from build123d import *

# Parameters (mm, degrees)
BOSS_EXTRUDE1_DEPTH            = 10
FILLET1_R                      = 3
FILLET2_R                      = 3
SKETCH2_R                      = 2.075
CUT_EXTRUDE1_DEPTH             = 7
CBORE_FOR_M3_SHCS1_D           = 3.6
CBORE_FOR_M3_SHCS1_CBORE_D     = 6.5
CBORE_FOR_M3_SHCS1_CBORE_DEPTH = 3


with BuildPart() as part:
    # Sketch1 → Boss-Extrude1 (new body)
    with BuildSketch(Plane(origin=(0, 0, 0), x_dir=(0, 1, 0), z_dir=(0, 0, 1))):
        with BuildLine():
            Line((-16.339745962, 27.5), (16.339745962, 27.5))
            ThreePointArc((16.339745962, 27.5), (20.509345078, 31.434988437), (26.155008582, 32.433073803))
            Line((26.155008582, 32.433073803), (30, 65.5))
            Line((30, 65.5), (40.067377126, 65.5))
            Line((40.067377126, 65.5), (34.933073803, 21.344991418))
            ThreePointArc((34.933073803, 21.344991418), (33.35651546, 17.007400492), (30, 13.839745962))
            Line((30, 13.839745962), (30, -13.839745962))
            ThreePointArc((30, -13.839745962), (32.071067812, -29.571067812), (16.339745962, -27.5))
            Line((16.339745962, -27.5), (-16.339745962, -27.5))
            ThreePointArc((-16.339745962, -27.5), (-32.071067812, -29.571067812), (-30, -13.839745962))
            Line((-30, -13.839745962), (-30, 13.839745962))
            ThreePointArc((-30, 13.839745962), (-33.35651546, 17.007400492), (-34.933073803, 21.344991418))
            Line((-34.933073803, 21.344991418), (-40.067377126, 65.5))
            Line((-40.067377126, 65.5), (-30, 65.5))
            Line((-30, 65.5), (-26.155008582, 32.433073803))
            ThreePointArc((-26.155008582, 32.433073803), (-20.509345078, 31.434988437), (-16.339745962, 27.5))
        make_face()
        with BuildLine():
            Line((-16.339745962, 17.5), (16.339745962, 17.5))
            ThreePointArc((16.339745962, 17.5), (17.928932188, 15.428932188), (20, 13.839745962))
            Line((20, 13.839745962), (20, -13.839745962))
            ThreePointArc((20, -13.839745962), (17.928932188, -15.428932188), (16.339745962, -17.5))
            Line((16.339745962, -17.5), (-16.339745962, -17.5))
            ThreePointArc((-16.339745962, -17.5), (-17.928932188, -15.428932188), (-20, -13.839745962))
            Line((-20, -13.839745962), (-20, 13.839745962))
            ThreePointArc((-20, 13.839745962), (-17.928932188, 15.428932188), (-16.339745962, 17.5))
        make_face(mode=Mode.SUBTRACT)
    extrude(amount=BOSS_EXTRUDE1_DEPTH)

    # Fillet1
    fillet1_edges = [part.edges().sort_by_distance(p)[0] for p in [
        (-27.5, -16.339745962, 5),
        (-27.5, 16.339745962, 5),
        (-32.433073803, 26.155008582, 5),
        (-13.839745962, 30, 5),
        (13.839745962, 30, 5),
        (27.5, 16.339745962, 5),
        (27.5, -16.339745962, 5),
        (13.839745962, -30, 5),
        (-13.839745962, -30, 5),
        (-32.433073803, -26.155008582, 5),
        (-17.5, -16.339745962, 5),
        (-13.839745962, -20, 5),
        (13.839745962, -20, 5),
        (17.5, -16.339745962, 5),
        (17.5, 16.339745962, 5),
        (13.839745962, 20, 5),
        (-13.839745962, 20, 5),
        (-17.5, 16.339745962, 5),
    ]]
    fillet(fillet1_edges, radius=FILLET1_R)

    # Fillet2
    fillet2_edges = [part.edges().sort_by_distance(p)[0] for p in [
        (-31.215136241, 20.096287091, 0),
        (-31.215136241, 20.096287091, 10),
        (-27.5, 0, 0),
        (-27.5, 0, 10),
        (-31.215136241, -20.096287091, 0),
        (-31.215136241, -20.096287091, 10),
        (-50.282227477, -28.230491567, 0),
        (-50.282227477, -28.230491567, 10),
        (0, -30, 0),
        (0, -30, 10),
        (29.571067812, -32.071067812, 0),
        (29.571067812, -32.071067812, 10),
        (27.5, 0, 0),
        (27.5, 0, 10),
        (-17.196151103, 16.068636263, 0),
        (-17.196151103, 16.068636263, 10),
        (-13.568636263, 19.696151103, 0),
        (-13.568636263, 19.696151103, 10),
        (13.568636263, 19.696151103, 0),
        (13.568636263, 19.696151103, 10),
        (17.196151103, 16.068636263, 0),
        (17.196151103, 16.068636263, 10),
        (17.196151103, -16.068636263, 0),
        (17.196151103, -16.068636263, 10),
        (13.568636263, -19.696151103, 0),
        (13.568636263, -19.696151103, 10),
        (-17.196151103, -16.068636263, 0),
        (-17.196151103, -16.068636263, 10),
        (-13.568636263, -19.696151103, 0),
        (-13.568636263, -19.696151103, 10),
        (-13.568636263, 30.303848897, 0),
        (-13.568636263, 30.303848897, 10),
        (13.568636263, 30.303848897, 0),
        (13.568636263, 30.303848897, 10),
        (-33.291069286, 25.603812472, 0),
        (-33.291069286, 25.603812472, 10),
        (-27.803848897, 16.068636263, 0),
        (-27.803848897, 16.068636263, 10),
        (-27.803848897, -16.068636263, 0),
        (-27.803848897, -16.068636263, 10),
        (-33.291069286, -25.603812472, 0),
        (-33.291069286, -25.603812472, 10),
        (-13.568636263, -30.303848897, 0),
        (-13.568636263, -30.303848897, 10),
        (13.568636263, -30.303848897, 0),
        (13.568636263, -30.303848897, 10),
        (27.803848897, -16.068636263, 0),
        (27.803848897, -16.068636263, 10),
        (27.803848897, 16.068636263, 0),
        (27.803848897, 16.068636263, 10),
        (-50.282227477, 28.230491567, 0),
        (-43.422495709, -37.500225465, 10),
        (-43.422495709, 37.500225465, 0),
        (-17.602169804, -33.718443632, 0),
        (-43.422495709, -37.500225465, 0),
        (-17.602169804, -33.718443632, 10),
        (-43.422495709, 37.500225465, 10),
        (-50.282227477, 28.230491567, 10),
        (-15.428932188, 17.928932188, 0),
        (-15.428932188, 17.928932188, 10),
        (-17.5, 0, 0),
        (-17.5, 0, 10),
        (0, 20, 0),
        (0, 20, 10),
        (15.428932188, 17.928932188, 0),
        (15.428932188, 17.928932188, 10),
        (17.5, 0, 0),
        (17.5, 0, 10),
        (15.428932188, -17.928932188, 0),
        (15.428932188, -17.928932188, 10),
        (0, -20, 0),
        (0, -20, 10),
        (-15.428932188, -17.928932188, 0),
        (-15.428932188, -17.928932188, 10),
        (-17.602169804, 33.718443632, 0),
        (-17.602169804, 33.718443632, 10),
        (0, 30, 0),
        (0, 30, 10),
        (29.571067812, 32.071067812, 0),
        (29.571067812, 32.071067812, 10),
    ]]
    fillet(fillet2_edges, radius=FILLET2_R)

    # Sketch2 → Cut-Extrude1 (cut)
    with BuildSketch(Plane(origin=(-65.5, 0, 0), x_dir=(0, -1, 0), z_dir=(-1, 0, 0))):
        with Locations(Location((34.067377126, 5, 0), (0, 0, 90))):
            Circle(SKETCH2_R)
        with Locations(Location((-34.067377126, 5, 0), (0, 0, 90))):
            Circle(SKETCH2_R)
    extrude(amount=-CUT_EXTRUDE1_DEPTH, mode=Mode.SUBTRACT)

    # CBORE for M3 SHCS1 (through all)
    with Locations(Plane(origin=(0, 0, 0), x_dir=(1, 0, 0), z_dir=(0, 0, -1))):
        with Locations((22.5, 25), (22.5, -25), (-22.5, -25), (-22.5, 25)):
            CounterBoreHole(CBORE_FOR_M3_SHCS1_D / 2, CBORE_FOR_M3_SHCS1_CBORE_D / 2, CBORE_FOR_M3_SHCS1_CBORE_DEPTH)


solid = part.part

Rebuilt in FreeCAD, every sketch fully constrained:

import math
import FreeCAD as App
import Part
import Sketcher
from FreeCAD import Vector
Q = App.Units.Quantity


def edges_at(feature, points):
    """Names of the edges that pass closest to the given points."""
    edges = feature.Shape.Edges
    near = lambda p: min(range(len(edges)), key=lambda i: edges[i].distToShape(Part.Vertex(*p))[0])
    return sorted({f"Edge{near(p) + 1}" for p in points})

doc = App.newDocument("Part")
body = doc.addObject("PartDesign::Body", "Body")

# Sketch on XY plane
sketch1 = doc.addObject("Sketcher::SketchObject", "Sketch")
body.addObject(sketch1)
sketch1.AttachmentSupport = (doc.XY_Plane, [""])
sketch1.MapMode = "FlatFace"
sketch1.addGeometry(Part.LineSegment(Vector(-28, 16, 0), Vector(-28, -16, 0)), False)
sketch1.addGeometry(Part.ArcOfCircle(Part.Circle(Vector(-22, -25, 0), Vector(0, 0, 1), 10), math.radians(120), math.radians(187)), False)
sketch1.addGeometry(Part.LineSegment(Vector(-32, -26, 0), Vector(-66, -30, 0)), False)
sketch1.addGeometry(Part.LineSegment(Vector(-66, -30, 0), Vector(-66, -40, 0)), False)
sketch1.addGeometry(Part.LineSegment(Vector(-66, -40, 0), Vector(-21, -35, 0)), False)
sketch1.addGeometry(Part.ArcOfCircle(Part.Circle(Vector(-23, -25, 0), Vector(0, 0, 1), 10), math.radians(-83), math.radians(-30)), False)
sketch1.addGeometry(Part.LineSegment(Vector(-14, -30, 0), Vector(14, -30, 0)), False)
sketch1.addGeometry(Part.ArcOfCircle(Part.Circle(Vector(22, -25, 0), Vector(0, 0, 1), 10), math.radians(-150), math.radians(60)), False)
sketch1.addGeometry(Part.LineSegment(Vector(28, -16, 0), Vector(28, 16, 0)), False)
sketch1.addGeometry(Part.ArcOfCircle(Part.Circle(Vector(22, 25, 0), Vector(0, 0, 1), 10), math.radians(-60), math.radians(150)), False)
sketch1.addGeometry(Part.LineSegment(Vector(14, 30, 0), Vector(-14, 30, 0)), False)
sketch1.addGeometry(Part.ArcOfCircle(Part.Circle(Vector(-23, 25, 0), Vector(0, 0, 1), 10), math.radians(30), math.radians(83)), False)
sketch1.addGeometry(Part.LineSegment(Vector(-21, 35, 0), Vector(-66, 40, 0)), False)
sketch1.addGeometry(Part.LineSegment(Vector(-66, 40, 0), Vector(-66, 30, 0)), False)
sketch1.addGeometry(Part.LineSegment(Vector(-66, 30, 0), Vector(-32, 26, 0)), False)
sketch1.addGeometry(Part.ArcOfCircle(Part.Circle(Vector(-22, 25, 0), Vector(0, 0, 1), 10), math.radians(173), math.radians(240)), False)
sketch1.addGeometry(Part.LineSegment(Vector(-18, -16, 0), Vector(-18, 16, 0)), False)
sketch1.addGeometry(Part.ArcOfCircle(Part.Circle(Vector(-22, 25, 0), Vector(0, 0, 1), 10), math.radians(-60), math.radians(-30)), False)
sketch1.addGeometry(Part.LineSegment(Vector(-14, 20, 0), Vector(14, 20, 0)), False)
sketch1.addGeometry(Part.ArcOfCircle(Part.Circle(Vector(22, 25, 0), Vector(0, 0, 1), 10), math.radians(-150), math.radians(-120)), False)
sketch1.addGeometry(Part.LineSegment(Vector(18, 16, 0), Vector(18, -16, 0)), False)
sketch1.addGeometry(Part.ArcOfCircle(Part.Circle(Vector(22, -25, 0), Vector(0, 0, 1), 10), math.radians(120), math.radians(150)), False)
sketch1.addGeometry(Part.LineSegment(Vector(14, -20, 0), Vector(-14, -20, 0)), False)
sketch1.addGeometry(Part.ArcOfCircle(Part.Circle(Vector(-22, -25, 0), Vector(0, 0, 1), 10), math.radians(30), math.radians(60)), False)
sketch1.addConstraint(Sketcher.Constraint("Coincident", 0, 2, 1, 1))
sketch1.addConstraint(Sketcher.Constraint("Coincident", 1, 2, 2, 1))
sketch1.addConstraint(Sketcher.Constraint("Coincident", 2, 2, 3, 1))
sketch1.addConstraint(Sketcher.Constraint("Coincident", 3, 2, 4, 1))
sketch1.addConstraint(Sketcher.Constraint("Tangent", 4, 2, 5, 1))
sketch1.addConstraint(Sketcher.Constraint("Coincident", 5, 2, 6, 1))
sketch1.addConstraint(Sketcher.Constraint("Coincident", 6, 2, 7, 1))
sketch1.addConstraint(Sketcher.Constraint("Coincident", 7, 2, 8, 1))
sketch1.addConstraint(Sketcher.Constraint("Coincident", 8, 2, 9, 1))
sketch1.addConstraint(Sketcher.Constraint("Coincident", 9, 2, 10, 1))
sketch1.addConstraint(Sketcher.Constraint("Coincident", 10, 2, 11, 1))
sketch1.addConstraint(Sketcher.Constraint("Tangent", 11, 2, 12, 1))
sketch1.addConstraint(Sketcher.Constraint("Coincident", 12, 2, 13, 1))
sketch1.addConstraint(Sketcher.Constraint("Coincident", 13, 2, 14, 1))
sketch1.addConstraint(Sketcher.Constraint("Coincident", 14, 2, 15, 1))
sketch1.addConstraint(Sketcher.Constraint("Coincident", 15, 2, 0, 1))
sketch1.addConstraint(Sketcher.Constraint("Coincident", 16, 2, 17, 1))
sketch1.addConstraint(Sketcher.Constraint("Coincident", 17, 2, 18, 1))
sketch1.addConstraint(Sketcher.Constraint("Coincident", 18, 2, 19, 1))
sketch1.addConstraint(Sketcher.Constraint("Coincident", 19, 2, 20, 1))
sketch1.addConstraint(Sketcher.Constraint("Coincident", 20, 2, 21, 1))
sketch1.addConstraint(Sketcher.Constraint("Coincident", 21, 2, 22, 1))
sketch1.addConstraint(Sketcher.Constraint("Coincident", 22, 2, 23, 1))
sketch1.addConstraint(Sketcher.Constraint("Coincident", 23, 2, 16, 1))
sketch1.addConstraint(Sketcher.Constraint("Vertical", 0))
sketch1.addConstraint(Sketcher.Constraint("Vertical", 3))
sketch1.addConstraint(Sketcher.Constraint("Horizontal", 6))
sketch1.addConstraint(Sketcher.Constraint("Vertical", 8))
sketch1.addConstraint(Sketcher.Constraint("Horizontal", 10))
sketch1.addConstraint(Sketcher.Constraint("Vertical", 13))
sketch1.addConstraint(Sketcher.Constraint("Vertical", 16))
sketch1.addConstraint(Sketcher.Constraint("Horizontal", 18))
sketch1.addConstraint(Sketcher.Constraint("Vertical", 20))
sketch1.addConstraint(Sketcher.Constraint("Horizontal", 22))
sketch1.addConstraint(Sketcher.Constraint("Coincident", 5, 3, 1, 3))
sketch1.addConstraint(Sketcher.Constraint("Coincident", 15, 3, 11, 3))
sketch1.addConstraint(Sketcher.Constraint("Coincident", 17, 3, 11, 3))
sketch1.addConstraint(Sketcher.Constraint("Coincident", 19, 3, 9, 3))
sketch1.addConstraint(Sketcher.Constraint("Coincident", 21, 3, 7, 3))
sketch1.addConstraint(Sketcher.Constraint("Coincident", 23, 3, 1, 3))
sketch1.addConstraint(Sketcher.Constraint("Equal", 1, 5))
sketch1.addConstraint(Sketcher.Constraint("Equal", 5, 7))
sketch1.addConstraint(Sketcher.Constraint("Equal", 7, 9))
sketch1.addConstraint(Sketcher.Constraint("Equal", 9, 11))
sketch1.addConstraint(Sketcher.Constraint("Equal", 11, 15))
sketch1.addConstraint(Sketcher.Constraint("Equal", 15, 17))
sketch1.addConstraint(Sketcher.Constraint("Equal", 17, 19))
sketch1.addConstraint(Sketcher.Constraint("Equal", 19, 21))
sketch1.addConstraint(Sketcher.Constraint("Equal", 21, 23))
sketch1.addConstraint(Sketcher.Constraint("Symmetric", 1, 3, 9, 3, -1, 1))
sketch1.addConstraint(Sketcher.Constraint("Symmetric", 7, 3, 11, 3, -1, 1))
sketch1.addConstraint(Sketcher.Constraint("Symmetric", 1, 3, 7, 3, -2))
sketch1.addConstraint(Sketcher.Constraint("Symmetric", 3, 2, 12, 2, -1))
sketch1.addConstraint(Sketcher.Constraint("Parallel", 2, 4))
sketch1.addConstraint(Sketcher.Constraint("Parallel", 12, 14))
sketch1.addConstraint(Sketcher.Constraint("Horizontal", 2, 2, 5, 2))
sketch1.addConstraint(Sketcher.Constraint("Horizontal", 0, 2, 7, 2))
sketch1.addConstraint(Sketcher.Constraint("Horizontal", 10, 2, 13, 2))
sketch1.addConstraint(Sketcher.Constraint("Horizontal", 15, 2, 16, 2))
sketch1.addConstraint(Sketcher.Constraint("Horizontal", 16, 2, 19, 2))
sketch1.addConstraint(Sketcher.Constraint("Vertical", 6, 2, 9, 2))
sketch1.addConstraint(Sketcher.Constraint("Vertical", 10, 2, 17, 2))
sketch1.addConstraint(Sketcher.Constraint("Vertical", 18, 2, 21, 2))
sketch1.addConstraint(Sketcher.Constraint("Radius", 1, Q("10 mm")))
sketch1.addConstraint(Sketcher.Constraint("DistanceY", 1, 3, -1, 1, Q("25 mm")))
sketch1.addConstraint(Sketcher.Constraint("DistanceY", 2, 2, -1, 1, Q("30 mm")))
sketch1.addConstraint(Sketcher.Constraint("DistanceX", 1, 3, 7, 3, Q("45 mm")))
sketch1.addConstraint(Sketcher.Constraint("DistanceX", 0, 2, 5, 3, Q("5 mm")))
sketch1.addConstraint(Sketcher.Constraint("DistanceX", 2, 2, 0, 2, Q("38 mm")))
sketch1.addConstraint(Sketcher.Constraint("DistanceY", 3, 2, 3, 1, Q("10.067377 mm")))
pad1 = doc.addObject("PartDesign::Pad", "Pad")
body.addObject(pad1)
pad1.Profile = sketch1
pad1.Length = 10
doc.recompute()

fillet = doc.addObject("PartDesign::Fillet", "Fillet")
body.addObject(fillet)
fillet.Base = (pad1, edges_at(pad1, [
    (-27.5, -16.34, 5),
    (-27.5, 16.34, 5),
    (-32.433, 26.155, 5),
    (-13.84, 30, 5),
    (13.84, 30, 5),
    (27.5, 16.34, 5),
    (27.5, -16.34, 5),
    (13.84, -30, 5),
    (-13.84, -30, 5),
    (-32.433, -26.155, 5),
    (-17.5, -16.34, 5),
    (-13.84, -20, 5),
    (13.84, -20, 5),
    (17.5, -16.34, 5),
    (17.5, 16.34, 5),
    (13.84, 20, 5),
    (-13.84, 20, 5),
    (-17.5, 16.34, 5),
]))
fillet.Radius = 3
doc.recompute()

fillet2 = doc.addObject("PartDesign::Fillet", "Fillet001")
body.addObject(fillet2)
fillet2.Base = (fillet, edges_at(fillet, [
    (-31.215, 20.096, 0),
    (-31.215, 20.096, 10),
    (-27.5, 0, 0),
    (-27.5, 0, 10),
    (-31.215, -20.096, 0),
    (-31.215, -20.096, 10),
    (-50.282, -28.23, 0),
    (-50.282, -28.23, 10),
    (0, -30, 0),
    (0, -30, 10),
    (29.571, -32.071, 0),
    (29.571, -32.071, 10),
    (27.5, 0, 0),
    (27.5, 0, 10),
    (-17.196, 16.069, 0),
    (-17.196, 16.069, 10),
    (-13.569, 19.696, 0),
    (-13.569, 19.696, 10),
    (13.569, 19.696, 0),
    (13.569, 19.696, 10),
    (17.196, 16.069, 0),
    (17.196, 16.069, 10),
    (17.196, -16.069, 0),
    (17.196, -16.069, 10),
    (13.569, -19.696, 0),
    (13.569, -19.696, 10),
    (-17.196, -16.069, 0),
    (-17.196, -16.069, 10),
    (-13.569, -19.696, 0),
    (-13.569, -19.696, 10),
    (-13.569, 30.304, 0),
    (-13.569, 30.304, 10),
    (13.569, 30.304, 0),
    (13.569, 30.304, 10),
    (-33.291, 25.604, 0),
    (-33.291, 25.604, 10),
    (-27.804, 16.069, 0),
    (-27.804, 16.069, 10),
    (-27.804, -16.069, 0),
    (-27.804, -16.069, 10),
    (-33.291, -25.604, 0),
    (-33.291, -25.604, 10),
    (-13.569, -30.304, 0),
    (-13.569, -30.304, 10),
    (13.569, -30.304, 0),
    (13.569, -30.304, 10),
    (27.804, -16.069, 0),
    (27.804, -16.069, 10),
    (27.804, 16.069, 0),
    (27.804, 16.069, 10),
    (-50.282, 28.23, 0),
    (-43.422, -37.5, 10),
    (-43.422, 37.5, 0),
    (-17.602, -33.718, 0),
    (-43.422, -37.5, 0),
    (-17.602, -33.718, 10),
    (-43.422, 37.5, 10),
    (-50.282, 28.23, 10),
    (-15.429, 17.929, 0),
    (-15.429, 17.929, 10),
    (-17.5, 0, 0),
    (-17.5, 0, 10),
    (0, 20, 0),
    (0, 20, 10),
    (15.429, 17.929, 0),
    (15.429, 17.929, 10),
    (17.5, 0, 0),
    (17.5, 0, 10),
    (15.429, -17.929, 0),
    (15.429, -17.929, 10),
    (0, -20, 0),
    (0, -20, 10),
    (-15.429, -17.929, 0),
    (-15.429, -17.929, 10),
    (-17.602, 33.718, 0),
    (-17.602, 33.718, 10),
    (0, 30, 0),
    (0, 30, 10),
    (29.571, 32.071, 0),
    (29.571, 32.071, 10),
]))
fillet2.Radius = 3

# Sketch on YZ plane
sketch2 = doc.addObject("Sketcher::SketchObject", "Sketch001")
body.addObject(sketch2)
sketch2.AttachmentSupport = (doc.YZ_Plane, [""])
sketch2.MapMode = "FlatFace"
sketch2.AttachmentOffset = App.Placement(Vector(0, 0, -65.5), App.Rotation())
sketch2.addGeometry(Part.Circle(Vector(-34.1, 5, 0), Vector(0, 0, 1), 2.1), False)
sketch2.addGeometry(Part.Circle(Vector(34.1, 5, 0), Vector(0, 0, 1), 2.1), False)
sketch2.addConstraint(Sketcher.Constraint("Equal", 0, 1))
sketch2.addConstraint(Sketcher.Constraint("Symmetric", 0, 3, 1, 3, -2))
sketch2.addConstraint(Sketcher.Constraint("Diameter", 0, Q("4.15 mm")))
sketch2.addConstraint(Sketcher.Constraint("DistanceY", -1, 1, 0, 3, Q("5 mm")))
sketch2.addConstraint(Sketcher.Constraint("DistanceX", 0, 3, -1, 1, Q("34.067377 mm")))
pocket1 = doc.addObject("PartDesign::Pocket", "Pocket")
body.addObject(pocket1)
pocket1.Profile = sketch2
pocket1.Length = 7
pocket1.Reversed = True

# Sketch on XY plane
sketch3 = doc.addObject("Sketcher::SketchObject", "Sketch002")
body.addObject(sketch3)
sketch3.AttachmentSupport = (doc.XY_Plane, [""])
sketch3.MapMode = "FlatFace"
sketch3.addGeometry(Part.Circle(Vector(22.5, -25, 0), Vector(0, 0, 1), 1.8), False)
sketch3.addGeometry(Part.Circle(Vector(22.5, 25, 0), Vector(0, 0, 1), 1.8), False)
sketch3.addGeometry(Part.Circle(Vector(-22.5, 25, 0), Vector(0, 0, 1), 1.8), False)
sketch3.addGeometry(Part.Circle(Vector(-22.5, -25, 0), Vector(0, 0, 1), 1.8), False)
sketch3.addConstraint(Sketcher.Constraint("Equal", 0, 1))
sketch3.addConstraint(Sketcher.Constraint("Equal", 1, 2))
sketch3.addConstraint(Sketcher.Constraint("Equal", 2, 3))
sketch3.addConstraint(Sketcher.Constraint("Symmetric", 0, 3, 2, 3, -1, 1))
sketch3.addConstraint(Sketcher.Constraint("Symmetric", 1, 3, 3, 3, -1, 1))
sketch3.addConstraint(Sketcher.Constraint("Symmetric", 1, 3, 2, 3, -2))
sketch3.addConstraint(Sketcher.Constraint("Diameter", 0, Q("3.6 mm")))
sketch3.addConstraint(Sketcher.Constraint("DistanceY", 0, 3, -1, 1, Q("25 mm")))
sketch3.addConstraint(Sketcher.Constraint("DistanceX", 2, 3, 1, 3, Q("45 mm")))
doc.recompute()
hole = doc.addObject("PartDesign::Hole", "Hole")
body.addObject(hole)
hole.Profile = sketch3
hole.ThreadType = "None"
hole.Diameter = 3.6
hole.DepthType = "ThroughAll"
hole.HoleCutType = "Counterbore"
hole.HoleCutDiameter = 6.5
hole.HoleCutDepth = 3
hole.Reversed = True

doc.recompute()
